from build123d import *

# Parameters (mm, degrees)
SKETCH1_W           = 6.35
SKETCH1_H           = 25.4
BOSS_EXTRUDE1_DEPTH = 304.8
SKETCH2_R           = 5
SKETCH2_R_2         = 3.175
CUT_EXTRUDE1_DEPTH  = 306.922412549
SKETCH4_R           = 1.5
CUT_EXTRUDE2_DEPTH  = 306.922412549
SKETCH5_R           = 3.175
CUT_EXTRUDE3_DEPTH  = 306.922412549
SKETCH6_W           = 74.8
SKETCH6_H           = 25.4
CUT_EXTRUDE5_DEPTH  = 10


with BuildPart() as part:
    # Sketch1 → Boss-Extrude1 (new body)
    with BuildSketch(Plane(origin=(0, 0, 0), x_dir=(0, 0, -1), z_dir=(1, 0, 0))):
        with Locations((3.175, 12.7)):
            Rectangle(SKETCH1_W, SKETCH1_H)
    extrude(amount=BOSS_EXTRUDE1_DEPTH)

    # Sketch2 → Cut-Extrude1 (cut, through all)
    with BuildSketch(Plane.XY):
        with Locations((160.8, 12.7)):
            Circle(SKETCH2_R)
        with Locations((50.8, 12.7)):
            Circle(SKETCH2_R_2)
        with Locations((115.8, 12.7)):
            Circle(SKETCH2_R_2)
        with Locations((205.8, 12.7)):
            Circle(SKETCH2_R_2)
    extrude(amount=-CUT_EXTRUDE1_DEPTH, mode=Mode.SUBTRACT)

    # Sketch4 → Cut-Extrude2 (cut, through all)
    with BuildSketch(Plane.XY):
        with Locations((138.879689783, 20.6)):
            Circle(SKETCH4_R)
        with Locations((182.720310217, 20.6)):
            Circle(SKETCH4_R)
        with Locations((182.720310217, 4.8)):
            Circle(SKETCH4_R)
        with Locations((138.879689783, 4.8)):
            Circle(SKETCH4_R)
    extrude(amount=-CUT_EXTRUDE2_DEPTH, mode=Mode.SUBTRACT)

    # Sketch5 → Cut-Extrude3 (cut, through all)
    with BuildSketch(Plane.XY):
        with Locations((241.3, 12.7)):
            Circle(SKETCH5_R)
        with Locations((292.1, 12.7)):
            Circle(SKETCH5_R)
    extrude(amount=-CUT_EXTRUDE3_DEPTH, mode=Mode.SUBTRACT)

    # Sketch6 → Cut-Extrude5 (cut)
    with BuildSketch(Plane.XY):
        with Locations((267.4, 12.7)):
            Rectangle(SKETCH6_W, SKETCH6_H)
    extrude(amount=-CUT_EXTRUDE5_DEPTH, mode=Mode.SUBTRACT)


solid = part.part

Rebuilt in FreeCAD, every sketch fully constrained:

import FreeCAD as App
import Part
import Sketcher

V = App.Vector


def add_polygon(sketch, points):
    """Adds a closed chain of lines whose ends are joined by coincident constraints."""
    first, n = sketch.GeometryCount, len(points)
    for a, b in zip(points, points[1:] + points[:1]):
        sketch.addGeometry(Part.LineSegment(App.Vector(*a, 0), App.Vector(*b, 0)), False)
    for i in range(n):
        sketch.addConstraint(Sketcher.Constraint("Coincident", first + i, 2, first + (i + 1) % n, 1))

doc = App.newDocument("Part")
body = doc.addObject("PartDesign::Body", "Body")

# Sketch on YZ plane
sketch1 = body.newObject("Sketcher::SketchObject", "Sketch")
sketch1.AttachmentSupport = (doc.getObject("YZ_Plane"), [""])
sketch1.MapMode = "FlatFace"
add_polygon(sketch1, [(25, 0), (0, 0), (0, -6), (25, -6)])  # lines 0-3
sketch1.addConstraint([
    Sketcher.Constraint("Horizontal", 0),
    Sketcher.Constraint("Vertical", 1),
    Sketcher.Constraint("Horizontal", 2),
    Sketcher.Constraint("Vertical", 3),
    Sketcher.Constraint("Coincident", 0, 2, -1, 1),
    Sketcher.Constraint("DistanceX", 0, 2, 0, 1, 25.4),
    Sketcher.Constraint("DistanceY", 1, 2, 1, 1, 6.35),
])
pad1 = body.newObject("PartDesign::Pad", "Pad")
pad1.Profile = sketch1
pad1.Length = 304.8

# Sketch on XY plane
sketch2 = body.newObject("Sketcher::SketchObject", "Sketch001")
sketch2.AttachmentSupport = (doc.getObject("XY_Plane"), [""])
sketch2.MapMode = "FlatFace"
sketch2.addGeometry([
    Part.Circle(V(160.8, 12.7, 0), V(0, 0, 1), 5),
    Part.Circle(V(50.8, 12.7, 0), V(0, 0, 1), 3.2),
    Part.Circle(V(115.8, 12.7, 0), V(0, 0, 1), 3.2),
    Part.Circle(V(205.8, 12.7, 0), V(0, 0, 1), 3.2),
], False)
sketch2.addConstraint([
    Sketcher.Constraint("Equal", 1, 2),
    Sketcher.Constraint("Equal", 2, 3),
    Sketcher.Constraint("Horizontal", 0, 3, 1, 3),
    Sketcher.Constraint("Horizontal", 1, 3, 2, 3),
    Sketcher.Constraint("Horizontal", 2, 3, 3, 3),
    Sketcher.Constraint("Diameter", 0, 10.0),
    Sketcher.Constraint("Diameter", 1, 6.35),
    Sketcher.Constraint("DistanceX", 1, 3, 0, 3, 110.0),
    Sketcher.Constraint("DistanceX", 2, 3, 0, 3, 45.0),
    Sketcher.Constraint("DistanceX", 0, 3, 3, 3, 45.0),
    Sketcher.Constraint("DistanceX", -1, 1, 0, 3, 160.8),
    Sketcher.Constraint("DistanceY", -1, 1, 0, 3, 12.7),
])
pocket1 = body.newObject("PartDesign::Pocket", "Pocket")
pocket1.Profile = sketch2
pocket1.Type = "ThroughAll"

# Sketch on XY plane
sketch3 = body.newObject("Sketcher::SketchObject", "Sketch002")
sketch3.AttachmentSupport = (doc.getObject("XY_Plane"), [""])
sketch3.MapMode = "FlatFace"
sketch3.addGeometry([
    Part.Circle(V(138.9, 20.6, 0), V(0, 0, 1), 1.5),
    Part.Circle(V(182.7, 20.6, 0), V(0, 0, 1), 1.5),
    Part.Circle(V(182.7, 4.8, 0), V(0, 0, 1), 1.5),
    Part.Circle(V(138.9, 4.8, 0), V(0, 0, 1), 1.5),
], False)
sketch3.addConstraint([
    Sketcher.Constraint("Equal", 0, 1),
    Sketcher.Constraint("Equal", 1, 2),
    Sketcher.Constraint("Equal", 2, 3),
    Sketcher.Constraint("Horizontal", 0, 3, 1, 3),
    Sketcher.Constraint("Horizontal", 2, 3, 3, 3),
    Sketcher.Constraint("Vertical", 1, 3, 2, 3),
    Sketcher.Constraint("Vertical", 0, 3, 3, 3),
    Sketcher.Constraint("Diameter", 0, 3.0),
    Sketcher.Constraint("DistanceY", -1, 1, 0, 3, 20.6),
    Sketcher.Constraint("DistanceY", -1, 1, 2, 3, 4.8),
    Sketcher.Constraint("DistanceX", -1, 1, 0, 3, 138.87969),
    Sketcher.Constraint("DistanceX", -1, 1, 1, 3, 182.72031),
])
pocket2 = body.newObject("PartDesign::Pocket", "Pocket001")
pocket2.Profile = sketch3
pocket2.Type = "ThroughAll"

# Sketch on XY plane
sketch4 = body.newObject("Sketcher::SketchObject", "Sketch003")
sketch4.AttachmentSupport = (doc.getObject("XY_Plane"), [""])
sketch4.MapMode = "FlatFace"
sketch4.addGeometry([
    Part.Circle(V(241.3, 12.7, 0), V(0, 0, 1), 3.2),
    Part.Circle(V(292.1, 12.7, 0), V(0, 0, 1), 3.2),
], False)
sketch4.addConstraint([
    Sketcher.Constraint("Equal", 0, 1),
    Sketcher.Constraint("Horizontal", 0, 3, 1, 3),
    Sketcher.Constraint("Diameter", 0, 6.35),
    Sketcher.Constraint("DistanceX", -1, 1, 0, 3, 241.3),
    Sketcher.Constraint("DistanceY", -1, 1, 0, 3, 12.7),
    Sketcher.Constraint("DistanceX", -1, 1, 1, 3, 292.1),
])
pocket3 = body.newObject("PartDesign::Pocket", "Pocket002")
pocket3.Profile = sketch4
pocket3.Type = "ThroughAll"

# Sketch on XY plane
sketch5 = body.newObject("Sketcher::SketchObject", "Sketch004")
sketch5.AttachmentSupport = (doc.getObject("XY_Plane"), [""])
sketch5.MapMode = "FlatFace"
add_polygon(sketch5, [(230, 25), (230, 0), (305, 0), (305, 25)])  # lines 0-3
sketch5.addConstraint([
    Sketcher.Constraint("Vertical", 0),
    Sketcher.Constraint("Horizontal", 1),
    Sketcher.Constraint("Vertical", 2),
    Sketcher.Constraint("Horizontal", 3),
    Sketcher.Constraint("PointOnObject", 0, 2, -1),
    Sketcher.Constraint("DistanceX", 1, 1, 1, 2, 74.8),
    Sketcher.Constraint("DistanceY", 0, 2, 0, 1, 25.4),
    Sketcher.Constraint("DistanceX", -1, 1, 0, 2, 230.0),
])
pocket4 = body.newObject("PartDesign::Pocket", "Pocket003")
pocket4.Profile = sketch5
pocket4.Length = 10

doc.recompute()
